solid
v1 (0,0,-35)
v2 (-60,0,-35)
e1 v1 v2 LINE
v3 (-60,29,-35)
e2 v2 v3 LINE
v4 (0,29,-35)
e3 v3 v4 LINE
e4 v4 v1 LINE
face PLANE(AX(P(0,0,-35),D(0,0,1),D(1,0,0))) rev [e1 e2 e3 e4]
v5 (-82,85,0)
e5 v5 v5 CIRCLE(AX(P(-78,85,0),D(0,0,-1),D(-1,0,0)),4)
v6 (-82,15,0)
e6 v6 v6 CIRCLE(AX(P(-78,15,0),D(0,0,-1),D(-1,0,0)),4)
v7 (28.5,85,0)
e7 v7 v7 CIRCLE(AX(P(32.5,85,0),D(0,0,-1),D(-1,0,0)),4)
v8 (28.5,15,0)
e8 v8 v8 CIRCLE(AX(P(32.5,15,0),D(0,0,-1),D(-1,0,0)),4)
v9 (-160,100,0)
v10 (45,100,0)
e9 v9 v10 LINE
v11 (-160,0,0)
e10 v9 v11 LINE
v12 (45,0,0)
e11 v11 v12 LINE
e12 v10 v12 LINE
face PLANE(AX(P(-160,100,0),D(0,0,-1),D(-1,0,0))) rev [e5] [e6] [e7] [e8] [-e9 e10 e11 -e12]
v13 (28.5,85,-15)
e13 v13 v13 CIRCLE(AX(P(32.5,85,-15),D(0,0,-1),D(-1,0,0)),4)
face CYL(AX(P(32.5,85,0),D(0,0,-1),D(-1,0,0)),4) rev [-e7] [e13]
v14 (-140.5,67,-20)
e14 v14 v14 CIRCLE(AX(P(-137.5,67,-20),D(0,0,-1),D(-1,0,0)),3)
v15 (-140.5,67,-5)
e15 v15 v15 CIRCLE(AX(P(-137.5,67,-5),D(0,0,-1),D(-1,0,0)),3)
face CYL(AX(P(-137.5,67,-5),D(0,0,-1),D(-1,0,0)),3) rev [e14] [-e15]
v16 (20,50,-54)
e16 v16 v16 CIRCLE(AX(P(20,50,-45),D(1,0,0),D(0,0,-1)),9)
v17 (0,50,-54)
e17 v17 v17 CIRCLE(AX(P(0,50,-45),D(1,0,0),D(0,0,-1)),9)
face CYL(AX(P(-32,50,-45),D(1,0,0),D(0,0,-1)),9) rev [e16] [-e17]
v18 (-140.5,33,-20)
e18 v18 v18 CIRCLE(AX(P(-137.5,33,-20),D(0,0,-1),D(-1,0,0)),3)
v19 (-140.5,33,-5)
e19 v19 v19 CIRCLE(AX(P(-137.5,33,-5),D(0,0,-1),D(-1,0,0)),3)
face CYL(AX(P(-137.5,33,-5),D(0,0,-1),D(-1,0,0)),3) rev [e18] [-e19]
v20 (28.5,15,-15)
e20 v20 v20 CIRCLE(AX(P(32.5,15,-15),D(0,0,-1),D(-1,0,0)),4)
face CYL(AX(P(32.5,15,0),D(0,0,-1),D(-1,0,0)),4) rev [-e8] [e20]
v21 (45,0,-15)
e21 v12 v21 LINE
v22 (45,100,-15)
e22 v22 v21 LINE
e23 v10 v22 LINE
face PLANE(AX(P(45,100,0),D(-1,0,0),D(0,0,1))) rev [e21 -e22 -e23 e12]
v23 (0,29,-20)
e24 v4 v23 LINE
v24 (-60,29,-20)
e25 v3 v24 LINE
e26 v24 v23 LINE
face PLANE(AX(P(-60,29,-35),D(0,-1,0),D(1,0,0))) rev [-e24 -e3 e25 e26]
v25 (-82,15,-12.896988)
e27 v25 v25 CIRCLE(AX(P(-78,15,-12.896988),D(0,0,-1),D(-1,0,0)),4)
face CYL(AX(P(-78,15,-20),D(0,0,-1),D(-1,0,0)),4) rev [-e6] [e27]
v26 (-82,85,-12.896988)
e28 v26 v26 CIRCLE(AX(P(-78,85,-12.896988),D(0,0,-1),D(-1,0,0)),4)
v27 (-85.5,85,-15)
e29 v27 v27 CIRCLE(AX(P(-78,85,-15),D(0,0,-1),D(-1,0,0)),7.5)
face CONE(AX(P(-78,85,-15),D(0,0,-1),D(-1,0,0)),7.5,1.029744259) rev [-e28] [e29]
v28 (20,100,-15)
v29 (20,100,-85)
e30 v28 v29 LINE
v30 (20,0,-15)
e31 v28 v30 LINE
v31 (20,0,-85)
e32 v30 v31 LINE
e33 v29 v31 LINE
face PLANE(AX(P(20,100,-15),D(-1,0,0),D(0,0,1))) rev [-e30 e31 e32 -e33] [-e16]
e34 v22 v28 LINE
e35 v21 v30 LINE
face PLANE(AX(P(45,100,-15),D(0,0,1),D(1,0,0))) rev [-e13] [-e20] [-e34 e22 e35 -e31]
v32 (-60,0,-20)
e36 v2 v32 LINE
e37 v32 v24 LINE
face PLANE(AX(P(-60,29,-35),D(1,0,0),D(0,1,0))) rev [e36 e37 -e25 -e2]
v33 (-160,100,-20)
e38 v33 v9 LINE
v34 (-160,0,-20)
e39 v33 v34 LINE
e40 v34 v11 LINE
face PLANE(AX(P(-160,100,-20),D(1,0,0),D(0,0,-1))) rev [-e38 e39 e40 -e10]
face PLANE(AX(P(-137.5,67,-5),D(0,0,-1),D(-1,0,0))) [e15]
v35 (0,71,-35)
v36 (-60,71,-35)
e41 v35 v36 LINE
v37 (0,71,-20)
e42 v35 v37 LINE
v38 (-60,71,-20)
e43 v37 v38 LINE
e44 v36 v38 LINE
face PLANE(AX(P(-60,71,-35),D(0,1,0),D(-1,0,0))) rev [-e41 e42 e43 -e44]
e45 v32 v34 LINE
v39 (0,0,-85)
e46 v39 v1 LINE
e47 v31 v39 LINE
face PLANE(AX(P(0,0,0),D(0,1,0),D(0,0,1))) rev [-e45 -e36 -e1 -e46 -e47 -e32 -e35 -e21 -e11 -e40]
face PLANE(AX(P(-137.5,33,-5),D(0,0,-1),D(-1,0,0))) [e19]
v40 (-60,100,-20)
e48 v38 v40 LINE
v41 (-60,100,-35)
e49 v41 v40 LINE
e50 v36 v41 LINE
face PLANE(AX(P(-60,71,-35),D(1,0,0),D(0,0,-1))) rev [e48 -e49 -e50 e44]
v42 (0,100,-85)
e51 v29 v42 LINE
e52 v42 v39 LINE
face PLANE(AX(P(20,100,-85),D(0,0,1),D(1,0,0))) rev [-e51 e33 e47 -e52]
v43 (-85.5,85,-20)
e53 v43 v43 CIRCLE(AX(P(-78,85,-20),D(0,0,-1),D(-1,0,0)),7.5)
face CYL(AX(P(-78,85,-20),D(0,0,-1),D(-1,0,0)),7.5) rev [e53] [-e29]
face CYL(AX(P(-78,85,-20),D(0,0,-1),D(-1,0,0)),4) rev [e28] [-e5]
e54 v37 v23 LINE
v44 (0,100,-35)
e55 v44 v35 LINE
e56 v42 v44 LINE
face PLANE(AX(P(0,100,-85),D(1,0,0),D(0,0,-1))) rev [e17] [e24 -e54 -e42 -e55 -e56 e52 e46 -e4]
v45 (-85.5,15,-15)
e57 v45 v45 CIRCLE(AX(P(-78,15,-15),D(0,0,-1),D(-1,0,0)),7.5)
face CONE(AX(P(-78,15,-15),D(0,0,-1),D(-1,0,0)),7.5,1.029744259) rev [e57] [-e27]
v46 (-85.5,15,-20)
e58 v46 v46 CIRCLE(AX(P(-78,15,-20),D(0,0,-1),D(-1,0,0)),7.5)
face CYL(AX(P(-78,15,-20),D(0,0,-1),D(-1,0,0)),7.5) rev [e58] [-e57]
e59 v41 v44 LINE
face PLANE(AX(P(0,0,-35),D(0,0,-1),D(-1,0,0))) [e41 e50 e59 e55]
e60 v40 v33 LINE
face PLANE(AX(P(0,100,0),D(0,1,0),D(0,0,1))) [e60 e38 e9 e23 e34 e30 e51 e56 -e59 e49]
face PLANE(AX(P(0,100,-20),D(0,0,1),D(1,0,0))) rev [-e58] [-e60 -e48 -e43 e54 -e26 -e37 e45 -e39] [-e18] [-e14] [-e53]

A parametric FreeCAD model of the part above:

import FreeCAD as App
import Part
import Sketcher
Q = App.Units.Quantity


def add_polygon(sketch, points):
    """Adds a closed chain of lines whose ends are joined by coincident constraints."""
    first, n = sketch.GeometryCount, len(points)
    for a, b in zip(points, points[1:] + points[:1]):
        sketch.addGeometry(Part.LineSegment(App.Vector(*a, 0), App.Vector(*b, 0)), False)
    for i in range(n):
        sketch.addConstraint(Sketcher.Constraint("Coincident", first + i, 2, first + (i + 1) % n, 1))

doc = App.newDocument("Part")
body = doc.addObject("PartDesign::Body", "Body")

# Sketch on XZ plane
sketch1 = body.newObject("Sketcher::SketchObject", "Sketch")
sketch1.AttachmentSupport = (doc.getObject("XZ_Plane"), [""])
sketch1.MapMode = "FlatFace"
add_polygon(sketch1, [(-160, 0), (45, 0), (45, -15), (20, -15), (20, -85), (0, -85), (0, -20), (-160, -20)])  # lines 0-7
sketch1.addConstraint([
    Sketcher.Constraint("Horizontal", 0),
    Sketcher.Constraint("Vertical", 1),
    Sketcher.Constraint("Horizontal", 2),
    Sketcher.Constraint("Vertical", 3),
    Sketcher.Constraint("Horizontal", 4),
    Sketcher.Constraint("Vertical", 5),
    Sketcher.Constraint("Horizontal", 6),
    Sketcher.Constraint("Vertical", 7),
    Sketcher.Constraint("PointOnObject", 0, 2, -1),
    Sketcher.Constraint("PointOnObject", 4, 2, -2),
    Sketcher.Constraint("Equal", 4, 7),
    Sketcher.Constraint("DistanceX", 0, 1, 0, 2, 205.0),
    Sketcher.Constraint("DistanceX", 2, 2, 2, 1, 25.0),
    Sketcher.Constraint("DistanceX", 4, 2, 4, 1, 20.0),
    Sketcher.Constraint("DistanceY", 1, 2, 1, 1, 15.0),
    Sketcher.Constraint("DistanceY", 3, 2, 3, 1, 70.0),
])
pad1 = body.newObject("PartDesign::Pad", "Pad")
pad1.Profile = sketch1
pad1.Length = 100
pad1.Reversed = True

# Sketch on XY plane
sketch2 = body.newObject("Sketcher::SketchObject", "Sketch001")
sketch2.AttachmentSupport = (doc.getObject("XY_Plane"), [""])
sketch2.MapMode = "FlatFace"
sketch2.AttachmentOffset = App.Placement(App.Vector(0, 0, -20), App.Rotation())
add_polygon(sketch2, [(0, 100), (0, 71), (-60, 71), (-60, 100)])  # lines 0-3
add_polygon(sketch2, [(0, 29), (0, 0), (-60, 0), (-60, 29)])  # lines 4-7
sketch2.addConstraint([
    Sketcher.Constraint("Vertical", 0),
    Sketcher.Constraint("Horizontal", 1),
    Sketcher.Constraint("Vertical", 2),
    Sketcher.Constraint("Horizontal", 3),
    Sketcher.Constraint("Vertical", 4),
    Sketcher.Constraint("Horizontal", 5),
    Sketcher.Constraint("Vertical", 6),
    Sketcher.Constraint("Horizontal", 7),
    Sketcher.Constraint("Coincident", 4, 2, -1, 1),
    Sketcher.Constraint("PointOnObject", 0, 2, -2),
    Sketcher.Constraint("Vertical", 2, 2, 5, 2),
    Sketcher.Constraint("Equal", 2, 4),
    Sketcher.Constraint("DistanceX", 1, 2, 1, 1, 60.0),
    Sketcher.Constraint("DistanceY", 0, 2, 0, 1, 29.0),
    Sketcher.Constraint("DistanceY", -1, 1, 0, 2, 71.0),
])
pad2 = body.newObject("PartDesign::Pad", "Pad001")
pad2.Profile = sketch2
pad2.Length = 15
pad2.Reversed = True

# Sketch on XY plane
sketch3 = body.newObject("Sketcher::SketchObject", "Sketch002")
sketch3.AttachmentSupport = (doc.getObject("XY_Plane"), [""])
sketch3.MapMode = "FlatFace"
sketch3.AttachmentOffset = App.Placement(App.Vector(0, 0, -15), App.Rotation())
sketch3.addGeometry([
    Part.Circle(App.Vector(32.5, 85, 0), App.Vector(0, 0, 1), 4),
    Part.Circle(App.Vector(32.5, 15, 0), App.Vector(0, 0, 1), 4),
], False)
sketch3.addConstraint([
    Sketcher.Constraint("Equal", 0, 1),
    Sketcher.Constraint("Vertical", 0, 3, 1, 3),
    Sketcher.Constraint("Diameter", 0, 8.0),
    Sketcher.Constraint("DistanceY", -1, 1, 0, 3, 85.0),
    Sketcher.Constraint("DistanceY", -1, 1, 1, 3, 15.0),
    Sketcher.Constraint("DistanceX", -1, 1, 0, 3, 32.5),
])
pocket1 = body.newObject("PartDesign::Pocket", "Pocket")
pocket1.Profile = sketch3
pocket1.Length = 15
pocket1.Reversed = True

# Sketch on YZ plane
sketch4 = body.newObject("Sketcher::SketchObject", "Sketch003")
sketch4.AttachmentSupport = (doc.getObject("YZ_Plane"), [""])
sketch4.MapMode = "FlatFace"
sketch4.AttachmentOffset = App.Placement(App.Vector(0, 0, -78), App.Rotation())
add_polygon(sketch4, [(85, 0), (85, -20), (92.5, -20), (92.5, -15), (89, -12.9), (89, 0)])  # lines 0-5
sketch4.addGeometry(Part.LineSegment(App.Vector(85, -20, 0), App.Vector(85, 0, 0)), True)  # axis
sketch4.addConstraint([
    Sketcher.Constraint("Vertical", 0),
    Sketcher.Constraint("Horizontal", 1),
    Sketcher.Constraint("Vertical", 2),
    Sketcher.Constraint("Vertical", 4),
    Sketcher.Constraint("Horizontal", 5),
    Sketcher.Constraint("Vertical", 6),
    Sketcher.Constraint("Coincident", 6, 1, 0, 2),
    Sketcher.Constraint("PointOnObject", 4, 2, -1),
    Sketcher.Constraint("PointOnObject", 6, 2, -1),
    Sketcher.Constraint("DistanceX", 5, 2, 5, 1, 4.0),
    Sketcher.Constraint("DistanceY", 0, 2, 0, 1, 20.0),
    Sketcher.Constraint("DistanceY", 2, 1, 2, 2, 5.0),
    Sketcher.Constraint("Angle", 3, Q("149 deg")),
    Sketcher.Constraint("DistanceX", 1, 1, 1, 2, 7.5),
    Sketcher.Constraint("DistanceX", -1, 1, 0, 2, 85.0),
])
groove = body.newObject("PartDesign::Groove", "Groove")
groove.Profile = sketch4
groove.ReferenceAxis = (sketch4, ["Axis0"])
groove.Angle = 360
doc.recompute()

linearpattern = body.newObject("PartDesign::LinearPattern", "LinearPattern")
linearpattern.Originals = [groove]
linearpattern.Direction = (doc.getObject("Y_Axis"), [""])
linearpattern.Mode = "offset"
linearpattern.Offset = 70
linearpattern.Occurrences = 2
linearpattern.Reversed = True
body.Tip = linearpattern

# Sketch on XY plane
sketch5 = body.newObject("Sketcher::SketchObject", "Sketch004")
sketch5.AttachmentSupport = (doc.getObject("XY_Plane"), [""])
sketch5.MapMode = "FlatFace"
sketch5.AttachmentOffset = App.Placement(App.Vector(0, 0, -20), App.Rotation())
sketch5.addGeometry([
    Part.Circle(App.Vector(-137.5, 67, 0), App.Vector(0, 0, 1), 3),
    Part.Circle(App.Vector(-137.5, 33, 0), App.Vector(0, 0, 1), 3),
], False)
sketch5.addConstraint([
    Sketcher.Constraint("Equal", 0, 1),
    Sketcher.Constraint("Vertical", 0, 3, 1, 3),
    Sketcher.Constraint("Diameter", 0, 6.0),
    Sketcher.Constraint("DistanceY", -1, 1, 0, 3, 67.0),
    Sketcher.Constraint("DistanceY", -1, 1, 1, 3, 33.0),
    Sketcher.Constraint("DistanceX", 0, 3, -1, 1, 137.5),
])
pocket2 = body.newObject("PartDesign::Pocket", "Pocket001")
pocket2.Profile = sketch5
pocket2.Length = 15
pocket2.Reversed = True

# Sketch on YZ plane
sketch6 = body.newObject("Sketcher::SketchObject", "Sketch005")
sketch6.AttachmentSupport = (doc.getObject("YZ_Plane"), [""])
sketch6.MapMode = "FlatFace"
sketch6.AttachmentOffset = App.Placement(App.Vector(0, 0, 20), App.Rotation())
sketch6.addGeometry(Part.Circle(App.Vector(50, -45, 0), App.Vector(0, 0, 1), 9), False)
sketch6.addConstraint([
    Sketcher.Constraint("Diameter", 0, 18.0),
    Sketcher.Constraint("DistanceX", -1, 1, 0, 3, 50.0),
    Sketcher.Constraint("DistanceY", 0, 3, -1, 1, 45.0),
])
pocket3 = body.newObject("PartDesign::Pocket", "Pocket002")
pocket3.Profile = sketch6
pocket3.Length = 52

doc.recompute()
